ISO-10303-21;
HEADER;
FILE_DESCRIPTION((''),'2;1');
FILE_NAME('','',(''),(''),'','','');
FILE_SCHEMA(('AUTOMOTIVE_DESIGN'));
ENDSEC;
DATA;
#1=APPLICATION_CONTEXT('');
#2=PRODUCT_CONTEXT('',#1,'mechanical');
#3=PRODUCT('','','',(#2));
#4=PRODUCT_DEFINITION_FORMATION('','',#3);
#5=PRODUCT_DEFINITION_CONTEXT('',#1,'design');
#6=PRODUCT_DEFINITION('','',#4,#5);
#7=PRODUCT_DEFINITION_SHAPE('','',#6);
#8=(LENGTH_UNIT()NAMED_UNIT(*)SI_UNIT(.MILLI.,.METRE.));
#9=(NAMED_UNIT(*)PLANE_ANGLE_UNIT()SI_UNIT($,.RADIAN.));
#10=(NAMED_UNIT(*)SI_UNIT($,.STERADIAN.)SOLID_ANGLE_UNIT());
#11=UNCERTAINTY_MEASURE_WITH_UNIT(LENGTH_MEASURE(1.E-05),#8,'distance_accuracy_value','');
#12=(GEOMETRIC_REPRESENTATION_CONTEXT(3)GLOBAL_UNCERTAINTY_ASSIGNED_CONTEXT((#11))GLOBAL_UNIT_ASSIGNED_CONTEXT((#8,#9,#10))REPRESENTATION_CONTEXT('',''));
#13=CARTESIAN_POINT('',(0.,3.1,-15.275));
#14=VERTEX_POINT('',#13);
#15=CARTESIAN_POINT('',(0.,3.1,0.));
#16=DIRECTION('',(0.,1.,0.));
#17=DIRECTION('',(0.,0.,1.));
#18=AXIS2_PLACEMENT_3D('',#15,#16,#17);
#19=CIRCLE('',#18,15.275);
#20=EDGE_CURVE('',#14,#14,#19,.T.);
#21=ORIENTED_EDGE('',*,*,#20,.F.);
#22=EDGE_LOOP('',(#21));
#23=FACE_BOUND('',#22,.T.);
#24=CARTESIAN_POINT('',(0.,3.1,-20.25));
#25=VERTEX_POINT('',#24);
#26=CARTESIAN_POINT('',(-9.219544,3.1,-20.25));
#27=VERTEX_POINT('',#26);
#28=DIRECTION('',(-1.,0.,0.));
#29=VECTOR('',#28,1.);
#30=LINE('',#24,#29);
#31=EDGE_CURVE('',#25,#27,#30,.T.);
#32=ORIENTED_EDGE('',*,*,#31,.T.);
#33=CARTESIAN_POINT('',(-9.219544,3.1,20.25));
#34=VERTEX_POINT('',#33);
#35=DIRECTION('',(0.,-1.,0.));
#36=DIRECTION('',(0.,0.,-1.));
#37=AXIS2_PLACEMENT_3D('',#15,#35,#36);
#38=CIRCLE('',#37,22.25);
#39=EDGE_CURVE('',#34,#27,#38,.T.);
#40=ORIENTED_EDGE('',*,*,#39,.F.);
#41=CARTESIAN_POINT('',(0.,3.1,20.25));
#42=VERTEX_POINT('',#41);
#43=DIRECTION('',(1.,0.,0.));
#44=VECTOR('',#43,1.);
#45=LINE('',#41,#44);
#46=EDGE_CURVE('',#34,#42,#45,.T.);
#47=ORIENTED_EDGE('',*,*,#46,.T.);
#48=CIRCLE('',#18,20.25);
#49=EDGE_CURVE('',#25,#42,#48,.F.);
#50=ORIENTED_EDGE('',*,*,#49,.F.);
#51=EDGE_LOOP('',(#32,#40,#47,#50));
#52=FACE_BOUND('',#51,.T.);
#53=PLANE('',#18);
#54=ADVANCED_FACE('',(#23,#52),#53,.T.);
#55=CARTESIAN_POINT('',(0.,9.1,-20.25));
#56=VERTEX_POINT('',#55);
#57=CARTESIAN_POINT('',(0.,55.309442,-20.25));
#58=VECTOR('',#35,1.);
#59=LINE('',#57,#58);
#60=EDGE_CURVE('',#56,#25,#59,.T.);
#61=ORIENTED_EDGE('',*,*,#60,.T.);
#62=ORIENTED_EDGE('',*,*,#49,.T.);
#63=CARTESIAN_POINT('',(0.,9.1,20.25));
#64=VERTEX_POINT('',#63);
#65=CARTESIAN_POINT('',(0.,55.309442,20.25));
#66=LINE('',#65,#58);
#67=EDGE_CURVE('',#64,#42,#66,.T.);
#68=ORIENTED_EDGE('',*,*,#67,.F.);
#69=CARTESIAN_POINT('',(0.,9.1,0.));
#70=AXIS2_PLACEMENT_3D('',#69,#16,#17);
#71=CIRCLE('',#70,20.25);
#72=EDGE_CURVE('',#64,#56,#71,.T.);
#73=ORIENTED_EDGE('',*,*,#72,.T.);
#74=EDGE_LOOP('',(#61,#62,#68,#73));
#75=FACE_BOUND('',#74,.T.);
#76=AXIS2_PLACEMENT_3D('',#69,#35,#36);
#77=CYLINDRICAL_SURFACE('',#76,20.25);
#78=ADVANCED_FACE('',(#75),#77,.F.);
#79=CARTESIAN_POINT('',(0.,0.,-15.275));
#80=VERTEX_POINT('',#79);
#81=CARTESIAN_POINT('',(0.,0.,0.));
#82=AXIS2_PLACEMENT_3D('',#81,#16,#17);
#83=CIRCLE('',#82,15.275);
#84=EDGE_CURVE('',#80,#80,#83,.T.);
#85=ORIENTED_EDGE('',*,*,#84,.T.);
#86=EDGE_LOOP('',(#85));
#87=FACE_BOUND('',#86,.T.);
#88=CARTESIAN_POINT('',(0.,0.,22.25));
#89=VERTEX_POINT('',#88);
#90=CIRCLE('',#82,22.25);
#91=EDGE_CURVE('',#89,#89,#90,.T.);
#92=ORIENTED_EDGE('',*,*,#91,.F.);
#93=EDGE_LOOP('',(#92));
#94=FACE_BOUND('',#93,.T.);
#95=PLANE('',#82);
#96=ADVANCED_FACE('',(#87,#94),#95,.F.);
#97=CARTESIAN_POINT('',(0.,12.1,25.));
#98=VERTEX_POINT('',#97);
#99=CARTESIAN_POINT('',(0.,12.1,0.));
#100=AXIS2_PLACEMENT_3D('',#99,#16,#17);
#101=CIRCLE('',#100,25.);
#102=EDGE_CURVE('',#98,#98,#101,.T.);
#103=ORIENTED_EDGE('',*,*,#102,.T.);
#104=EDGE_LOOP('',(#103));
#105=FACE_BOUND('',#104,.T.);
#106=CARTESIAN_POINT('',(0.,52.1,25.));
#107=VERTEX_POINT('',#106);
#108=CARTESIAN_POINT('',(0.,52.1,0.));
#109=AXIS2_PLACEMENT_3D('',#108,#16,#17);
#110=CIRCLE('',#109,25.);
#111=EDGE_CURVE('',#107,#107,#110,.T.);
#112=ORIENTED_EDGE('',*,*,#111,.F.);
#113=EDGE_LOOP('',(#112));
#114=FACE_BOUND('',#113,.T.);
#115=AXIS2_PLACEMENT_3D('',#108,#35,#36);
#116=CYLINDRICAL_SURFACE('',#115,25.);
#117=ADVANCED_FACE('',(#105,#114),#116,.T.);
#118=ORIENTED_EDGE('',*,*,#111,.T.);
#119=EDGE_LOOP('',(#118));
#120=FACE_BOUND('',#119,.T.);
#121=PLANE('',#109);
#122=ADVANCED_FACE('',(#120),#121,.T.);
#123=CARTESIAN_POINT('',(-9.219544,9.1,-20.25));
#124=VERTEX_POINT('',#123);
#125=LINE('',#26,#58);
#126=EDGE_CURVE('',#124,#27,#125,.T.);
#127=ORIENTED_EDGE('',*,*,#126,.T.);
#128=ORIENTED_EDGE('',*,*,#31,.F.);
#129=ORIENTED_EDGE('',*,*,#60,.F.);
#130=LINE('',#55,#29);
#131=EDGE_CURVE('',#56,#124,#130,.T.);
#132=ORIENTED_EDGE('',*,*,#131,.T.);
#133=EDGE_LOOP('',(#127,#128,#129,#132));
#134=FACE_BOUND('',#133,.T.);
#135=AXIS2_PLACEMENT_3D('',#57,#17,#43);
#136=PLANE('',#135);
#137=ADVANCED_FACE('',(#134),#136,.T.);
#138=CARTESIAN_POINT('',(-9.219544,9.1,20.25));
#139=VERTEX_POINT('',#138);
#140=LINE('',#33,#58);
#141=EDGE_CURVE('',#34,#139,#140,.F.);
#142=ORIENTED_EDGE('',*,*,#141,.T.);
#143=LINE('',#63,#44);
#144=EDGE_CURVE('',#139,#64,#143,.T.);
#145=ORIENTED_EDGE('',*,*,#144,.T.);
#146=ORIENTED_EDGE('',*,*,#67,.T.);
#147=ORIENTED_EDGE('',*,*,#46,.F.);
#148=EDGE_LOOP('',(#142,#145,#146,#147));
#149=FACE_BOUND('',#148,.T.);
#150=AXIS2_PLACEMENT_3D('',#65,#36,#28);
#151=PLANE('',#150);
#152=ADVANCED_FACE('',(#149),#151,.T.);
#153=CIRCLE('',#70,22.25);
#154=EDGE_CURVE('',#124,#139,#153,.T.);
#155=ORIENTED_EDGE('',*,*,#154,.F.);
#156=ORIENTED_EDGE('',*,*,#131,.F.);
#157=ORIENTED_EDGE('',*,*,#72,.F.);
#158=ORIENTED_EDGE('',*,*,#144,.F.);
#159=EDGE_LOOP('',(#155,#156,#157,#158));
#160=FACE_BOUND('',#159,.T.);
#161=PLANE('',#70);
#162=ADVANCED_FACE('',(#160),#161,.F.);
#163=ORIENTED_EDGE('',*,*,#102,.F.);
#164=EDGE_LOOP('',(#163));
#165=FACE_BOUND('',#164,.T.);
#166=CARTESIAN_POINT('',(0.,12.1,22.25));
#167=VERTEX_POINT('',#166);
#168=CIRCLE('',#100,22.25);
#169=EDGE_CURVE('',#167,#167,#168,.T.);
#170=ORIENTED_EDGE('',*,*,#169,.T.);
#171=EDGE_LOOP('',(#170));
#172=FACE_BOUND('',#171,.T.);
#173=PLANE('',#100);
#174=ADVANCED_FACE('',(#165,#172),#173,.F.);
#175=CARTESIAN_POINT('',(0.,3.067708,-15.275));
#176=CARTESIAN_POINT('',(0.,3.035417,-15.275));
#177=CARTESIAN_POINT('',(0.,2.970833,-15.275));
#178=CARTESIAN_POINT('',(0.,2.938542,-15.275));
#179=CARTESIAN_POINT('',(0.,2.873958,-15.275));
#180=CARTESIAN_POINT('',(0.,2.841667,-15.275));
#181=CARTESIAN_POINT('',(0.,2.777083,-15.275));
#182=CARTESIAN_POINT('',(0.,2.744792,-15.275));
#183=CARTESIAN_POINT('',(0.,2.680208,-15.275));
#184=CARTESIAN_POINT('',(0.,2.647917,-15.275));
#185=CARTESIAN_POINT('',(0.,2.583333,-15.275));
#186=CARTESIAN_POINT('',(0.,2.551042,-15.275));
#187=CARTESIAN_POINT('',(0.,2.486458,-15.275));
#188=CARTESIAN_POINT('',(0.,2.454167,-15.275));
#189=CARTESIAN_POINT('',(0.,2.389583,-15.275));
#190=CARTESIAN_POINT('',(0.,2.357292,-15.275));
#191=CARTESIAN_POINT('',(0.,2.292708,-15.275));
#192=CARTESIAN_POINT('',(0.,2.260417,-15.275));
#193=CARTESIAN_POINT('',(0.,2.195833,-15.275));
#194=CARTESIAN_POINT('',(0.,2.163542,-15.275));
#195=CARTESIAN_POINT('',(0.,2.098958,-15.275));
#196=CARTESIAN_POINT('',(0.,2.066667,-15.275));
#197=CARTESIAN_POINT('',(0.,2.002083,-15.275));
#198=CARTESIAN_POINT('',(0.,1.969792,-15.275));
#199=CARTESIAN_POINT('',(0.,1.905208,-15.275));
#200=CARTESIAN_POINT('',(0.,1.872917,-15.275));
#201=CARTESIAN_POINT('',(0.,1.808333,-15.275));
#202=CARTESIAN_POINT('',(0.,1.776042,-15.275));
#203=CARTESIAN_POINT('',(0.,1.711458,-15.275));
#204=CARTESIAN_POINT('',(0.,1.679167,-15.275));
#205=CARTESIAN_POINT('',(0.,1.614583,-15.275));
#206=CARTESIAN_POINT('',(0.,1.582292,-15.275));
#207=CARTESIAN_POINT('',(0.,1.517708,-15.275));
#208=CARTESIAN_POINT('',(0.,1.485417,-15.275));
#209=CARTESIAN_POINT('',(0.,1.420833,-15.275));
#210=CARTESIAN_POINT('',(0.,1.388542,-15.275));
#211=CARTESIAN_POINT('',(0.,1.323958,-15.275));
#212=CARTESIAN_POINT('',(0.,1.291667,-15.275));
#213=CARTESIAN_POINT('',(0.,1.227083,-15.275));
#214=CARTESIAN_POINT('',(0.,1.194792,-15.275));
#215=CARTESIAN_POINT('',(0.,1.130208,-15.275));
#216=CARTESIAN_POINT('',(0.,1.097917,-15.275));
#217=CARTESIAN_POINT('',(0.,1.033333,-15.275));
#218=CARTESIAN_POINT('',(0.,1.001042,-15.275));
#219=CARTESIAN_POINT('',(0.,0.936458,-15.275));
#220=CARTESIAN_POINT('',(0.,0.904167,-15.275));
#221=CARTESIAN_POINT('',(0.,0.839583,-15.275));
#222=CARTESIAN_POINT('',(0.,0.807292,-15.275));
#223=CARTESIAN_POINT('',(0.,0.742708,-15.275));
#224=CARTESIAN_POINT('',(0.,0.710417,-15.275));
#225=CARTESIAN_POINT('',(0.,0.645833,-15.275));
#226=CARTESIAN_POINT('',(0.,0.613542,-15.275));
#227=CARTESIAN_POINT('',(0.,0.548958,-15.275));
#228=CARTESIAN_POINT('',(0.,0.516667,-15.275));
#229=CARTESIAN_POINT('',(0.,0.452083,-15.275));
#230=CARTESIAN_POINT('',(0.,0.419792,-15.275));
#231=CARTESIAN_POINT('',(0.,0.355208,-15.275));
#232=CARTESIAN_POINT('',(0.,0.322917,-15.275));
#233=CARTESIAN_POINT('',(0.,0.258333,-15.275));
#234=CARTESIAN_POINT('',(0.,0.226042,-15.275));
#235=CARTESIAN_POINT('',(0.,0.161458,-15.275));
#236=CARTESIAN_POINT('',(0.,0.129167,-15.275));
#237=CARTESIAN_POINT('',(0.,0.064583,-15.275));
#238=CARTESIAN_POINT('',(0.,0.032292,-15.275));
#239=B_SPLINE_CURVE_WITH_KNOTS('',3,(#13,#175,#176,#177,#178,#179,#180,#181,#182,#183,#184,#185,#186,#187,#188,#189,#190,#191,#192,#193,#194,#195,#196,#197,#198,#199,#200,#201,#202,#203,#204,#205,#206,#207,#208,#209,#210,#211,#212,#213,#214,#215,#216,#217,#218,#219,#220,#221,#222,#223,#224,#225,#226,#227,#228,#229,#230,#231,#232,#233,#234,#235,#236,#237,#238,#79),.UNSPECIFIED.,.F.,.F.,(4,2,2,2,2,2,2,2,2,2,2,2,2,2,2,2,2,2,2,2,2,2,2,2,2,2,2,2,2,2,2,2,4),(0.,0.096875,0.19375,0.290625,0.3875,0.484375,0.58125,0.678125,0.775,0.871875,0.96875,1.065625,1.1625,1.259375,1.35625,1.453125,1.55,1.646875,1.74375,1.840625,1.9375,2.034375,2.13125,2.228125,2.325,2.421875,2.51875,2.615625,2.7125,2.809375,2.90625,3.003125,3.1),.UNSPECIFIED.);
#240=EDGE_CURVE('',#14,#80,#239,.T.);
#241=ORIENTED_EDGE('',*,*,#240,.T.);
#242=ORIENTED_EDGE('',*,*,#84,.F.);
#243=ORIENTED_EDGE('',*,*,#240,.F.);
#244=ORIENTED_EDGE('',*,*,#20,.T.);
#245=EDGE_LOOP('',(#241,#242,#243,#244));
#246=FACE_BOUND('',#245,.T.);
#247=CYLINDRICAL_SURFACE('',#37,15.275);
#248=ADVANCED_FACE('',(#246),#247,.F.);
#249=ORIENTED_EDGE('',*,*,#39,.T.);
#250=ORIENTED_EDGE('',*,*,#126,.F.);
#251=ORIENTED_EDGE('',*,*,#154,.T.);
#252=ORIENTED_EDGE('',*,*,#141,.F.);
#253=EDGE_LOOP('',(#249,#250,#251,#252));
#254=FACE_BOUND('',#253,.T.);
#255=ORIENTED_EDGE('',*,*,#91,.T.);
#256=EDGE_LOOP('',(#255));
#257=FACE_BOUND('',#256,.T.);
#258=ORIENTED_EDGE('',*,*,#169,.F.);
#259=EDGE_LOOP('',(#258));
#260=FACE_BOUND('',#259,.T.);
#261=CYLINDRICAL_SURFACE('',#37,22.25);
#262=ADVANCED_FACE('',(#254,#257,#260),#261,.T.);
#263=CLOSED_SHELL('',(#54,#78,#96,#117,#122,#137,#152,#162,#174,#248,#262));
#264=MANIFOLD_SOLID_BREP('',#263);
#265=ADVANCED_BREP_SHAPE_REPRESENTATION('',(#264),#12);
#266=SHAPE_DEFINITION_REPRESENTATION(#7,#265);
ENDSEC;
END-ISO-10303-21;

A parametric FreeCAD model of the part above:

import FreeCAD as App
import Part
import Sketcher

V = App.Vector
Q = App.Units.Quantity

doc = App.newDocument("Part")
body = doc.addObject("PartDesign::Body", "Body")

# Sketch on XZ plane
sketch1 = doc.addObject("Sketcher::SketchObject", "Sketch")
body.addObject(sketch1)
sketch1.AttachmentSupport = (doc.XZ_Plane, [""])
sketch1.MapMode = "FlatFace"
sketch1.addGeometry([
    Part.Circle(V(0, 0, 0), V(0, 0, 1), 22.25),
    Part.Circle(V(0, 0, 0), V(0, 0, 1), 15.275),
], False)
sketch1.addConstraint([
    Sketcher.Constraint("Coincident", 0, 3, -1, 1),
    Sketcher.Constraint("Coincident", 1, 3, -1, 1),
    Sketcher.Constraint("Diameter", 0, Q("44.5 mm")),
    Sketcher.Constraint("Diameter", 1, Q("30.55 mm")),
])
pad1 = doc.addObject("PartDesign::Pad", "Pad")
body.addObject(pad1)
pad1.Profile = sketch1
pad1.Length = 3.1
pad1.Reversed = True

# Sketch on XZ plane
sketch2 = doc.addObject("Sketcher::SketchObject", "Sketch001")
body.addObject(sketch2)
sketch2.AttachmentSupport = (doc.XZ_Plane, [""])
sketch2.MapMode = "FlatFace"
sketch2.AttachmentOffset = App.Placement(V(0, 0, -3.1), App.Rotation())
sketch2.addGeometry([
    Part.Circle(V(0, 0, 0), V(0, 0, 1), 22.25),
    Part.Circle(V(0, 0, 0), V(0, 0, 1), 20.25),
], False)
sketch2.addConstraint([
    Sketcher.Constraint("Coincident", 0, 3, -1, 1),
    Sketcher.Constraint("Coincident", 1, 3, -1, 1),
    Sketcher.Constraint("Diameter", 0, Q("44.5 mm")),
    Sketcher.Constraint("Diameter", 1, Q("40.5 mm")),
])
pad2 = doc.addObject("PartDesign::Pad", "Pad001")
body.addObject(pad2)
pad2.Profile = sketch2
pad2.Length = 6
pad2.Reversed = True

# Sketch on XZ plane
sketch3 = doc.addObject("Sketcher::SketchObject", "Sketch002")
body.addObject(sketch3)
sketch3.AttachmentSupport = (doc.XZ_Plane, [""])
sketch3.MapMode = "FlatFace"
sketch3.AttachmentOffset = App.Placement(V(0, 0, -9.1), App.Rotation())
sketch3.addGeometry(Part.Circle(V(0, 0, 0), V(0, 0, 1), 22.25), False)
sketch3.addConstraint([
    Sketcher.Constraint("Coincident", 0, 3, -1, 1),
    Sketcher.Constraint("Diameter", 0, Q("44.5 mm")),
])
pad3 = doc.addObject("PartDesign::Pad", "Pad002")
body.addObject(pad3)
pad3.Profile = sketch3
pad3.Length = 3
pad3.Reversed = True

# Sketch on XZ plane
sketch4 = doc.addObject("Sketcher::SketchObject", "Sketch003")
body.addObject(sketch4)
sketch4.AttachmentSupport = (doc.XZ_Plane, [""])
sketch4.MapMode = "FlatFace"
sketch4.AttachmentOffset = App.Placement(V(0, 0, -12.1), App.Rotation())
sketch4.addGeometry(Part.Circle(V(0, 0, 0), V(0, 0, 1), 25), False)
sketch4.addConstraint([
    Sketcher.Constraint("Coincident", 0, 3, -1, 1),
    Sketcher.Constraint("Diameter", 0, Q("50 mm")),
])
pad4 = doc.addObject("PartDesign::Pad", "Pad003")
body.addObject(pad4)
pad4.Profile = sketch4
pad4.Length = 40
pad4.Reversed = True

# Sketch on XZ plane
sketch5 = doc.addObject("Sketcher::SketchObject", "Sketch004")
body.addObject(sketch5)
sketch5.AttachmentSupport = (doc.XZ_Plane, [""])
sketch5.MapMode = "FlatFace"
sketch5.AttachmentOffset = App.Placement(V(0, 0, -3.1), App.Rotation())
sketch5.addGeometry([
    Part.LineSegment(V(-22.25, -20.25, 0), V(-22.25, 20.25, 0)),
    Part.LineSegment(V(-22.25, 20.25, 0), V(0, 20.25, 0)),
    Part.LineSegment(V(0, 20.25, 0), V(0, -20.25, 0)),
    Part.LineSegment(V(0, -20.25, 0), V(-22.25, -20.25, 0)),
], False)
sketch5.addConstraint([
    Sketcher.Constraint("Coincident", 0, 2, 1, 1),
    Sketcher.Constraint("Coincident", 1, 2, 2, 1),
    Sketcher.Constraint("Coincident", 2, 2, 3, 1),
    Sketcher.Constraint("Coincident", 3, 2, 0, 1),
    Sketcher.Constraint("Vertical", 0),
    Sketcher.Constraint("Horizontal", 1),
    Sketcher.Constraint("Vertical", 2),
    Sketcher.Constraint("Horizontal", 3),
    Sketcher.Constraint("Symmetric", 1, 2, 2, 2, -1, 1),
    Sketcher.Constraint("DistanceY", 0, 1, 0, 2, Q("40.5 mm")),
    Sketcher.Constraint("DistanceX", 1, 1, 1, 2, Q("22.25 mm")),
])
pocket1 = doc.addObject("PartDesign::Pocket", "Pocket")
body.addObject(pocket1)
pocket1.Profile = sketch5
pocket1.Length = 6

doc.recompute()
